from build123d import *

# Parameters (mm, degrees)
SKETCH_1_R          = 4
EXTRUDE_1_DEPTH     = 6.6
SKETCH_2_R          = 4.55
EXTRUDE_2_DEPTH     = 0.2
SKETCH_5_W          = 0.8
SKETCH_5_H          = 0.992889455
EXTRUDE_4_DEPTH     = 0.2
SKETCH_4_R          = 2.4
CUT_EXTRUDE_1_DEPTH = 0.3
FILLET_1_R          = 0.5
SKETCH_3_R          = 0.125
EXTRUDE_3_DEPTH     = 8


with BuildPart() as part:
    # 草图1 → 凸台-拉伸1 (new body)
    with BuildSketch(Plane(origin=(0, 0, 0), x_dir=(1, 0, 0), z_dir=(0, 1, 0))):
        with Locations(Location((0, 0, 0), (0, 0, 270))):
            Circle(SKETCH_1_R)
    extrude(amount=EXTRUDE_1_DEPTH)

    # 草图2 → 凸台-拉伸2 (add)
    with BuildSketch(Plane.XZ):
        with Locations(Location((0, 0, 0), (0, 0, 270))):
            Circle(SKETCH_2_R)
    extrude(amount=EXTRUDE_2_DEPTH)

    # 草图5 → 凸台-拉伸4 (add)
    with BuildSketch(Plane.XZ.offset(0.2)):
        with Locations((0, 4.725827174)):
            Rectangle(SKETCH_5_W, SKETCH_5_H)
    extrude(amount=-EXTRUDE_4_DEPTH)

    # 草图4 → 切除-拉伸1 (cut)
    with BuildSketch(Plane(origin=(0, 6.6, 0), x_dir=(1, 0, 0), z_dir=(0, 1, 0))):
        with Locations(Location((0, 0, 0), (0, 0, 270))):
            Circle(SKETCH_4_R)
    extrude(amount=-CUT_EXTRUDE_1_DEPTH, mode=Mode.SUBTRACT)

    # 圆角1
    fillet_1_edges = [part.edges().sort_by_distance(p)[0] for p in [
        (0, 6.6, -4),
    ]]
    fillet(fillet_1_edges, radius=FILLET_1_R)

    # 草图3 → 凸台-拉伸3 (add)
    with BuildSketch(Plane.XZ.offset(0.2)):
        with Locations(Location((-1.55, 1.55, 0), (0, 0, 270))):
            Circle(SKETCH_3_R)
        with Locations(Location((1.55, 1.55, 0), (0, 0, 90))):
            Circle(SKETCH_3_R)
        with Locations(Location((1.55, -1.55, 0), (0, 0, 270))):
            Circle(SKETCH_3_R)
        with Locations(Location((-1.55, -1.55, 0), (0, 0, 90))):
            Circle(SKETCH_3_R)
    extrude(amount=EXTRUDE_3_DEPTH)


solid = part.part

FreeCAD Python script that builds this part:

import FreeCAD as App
import Part
import Sketcher
from FreeCAD import Vector
Q = App.Units.Quantity


def edges_at(feature, points):
    """Names of the edges that pass closest to the given points."""
    edges = feature.Shape.Edges
    near = lambda p: min(range(len(edges)), key=lambda i: edges[i].distToShape(Part.Vertex(*p))[0])
    return sorted({f"Edge{near(p) + 1}" for p in points})


def add_polygon(sketch, points):
    """Adds a closed chain of lines whose ends are joined by coincident constraints."""
    first, n = sketch.GeometryCount, len(points)
    for a, b in zip(points, points[1:] + points[:1]):
        sketch.addGeometry(Part.LineSegment(App.Vector(*a, 0), App.Vector(*b, 0)), False)
    for i in range(n):
        sketch.addConstraint(Sketcher.Constraint("Coincident", first + i, 2, first + (i + 1) % n, 1))

doc = App.newDocument("Part")
body = doc.addObject("PartDesign::Body", "Body")

# Sketch on XZ plane
sketch1 = body.newObject("Sketcher::SketchObject", "Sketch")
sketch1.AttachmentSupport = (doc.getObject("XZ_Plane"), [""])
sketch1.MapMode = "FlatFace"
sketch1.addGeometry(Part.Circle(Vector(0, 0, 0), Vector(0, 0, 1), 4), False)
sketch1.addConstraint(Sketcher.Constraint("Coincident", 0, 3, -1, 1))
sketch1.addConstraint(Sketcher.Constraint("Diameter", 0, Q("8 mm")))
pad1 = body.newObject("PartDesign::Pad", "Pad")
pad1.Profile = sketch1
pad1.Length = 6.6
pad1.Reversed = True

# Sketch on XZ plane
sketch2 = body.newObject("Sketcher::SketchObject", "Sketch001")
sketch2.AttachmentSupport = (doc.getObject("XZ_Plane"), [""])
sketch2.MapMode = "FlatFace"
sketch2.addGeometry(Part.Circle(Vector(0, 0, 0), Vector(0, 0, 1), 4.5), False)
sketch2.addConstraint(Sketcher.Constraint("Coincident", 0, 3, -1, 1))
sketch2.addConstraint(Sketcher.Constraint("Diameter", 0, Q("9.1 mm")))
pad2 = body.newObject("PartDesign::Pad", "Pad001")
pad2.Profile = sketch2
pad2.Length = 0.2

# Sketch on XZ plane
sketch3 = body.newObject("Sketcher::SketchObject", "Sketch002")
sketch3.AttachmentSupport = (doc.getObject("XZ_Plane"), [""])
sketch3.MapMode = "FlatFace"
sketch3.AttachmentOffset = App.Placement(Vector(0, 0, 0.2), App.Rotation())
add_polygon(sketch3, [(-0.4, 5.2), (-0.4, 4.2), (0.4, 4.2), (0.4, 5.2)])  # lines 0-3
sketch3.addConstraint(Sketcher.Constraint("Vertical", 0))
sketch3.addConstraint(Sketcher.Constraint("Horizontal", 1))
sketch3.addConstraint(Sketcher.Constraint("Vertical", 2))
sketch3.addConstraint(Sketcher.Constraint("Horizontal", 3))
sketch3.addConstraint(Sketcher.Constraint("DistanceX", 1, 1, 1, 2, Q("0.8 mm")))
sketch3.addConstraint(Sketcher.Constraint("DistanceX", 0, 2, -1, 1, Q("0.4 mm")))
sketch3.addConstraint(Sketcher.Constraint("DistanceY", 0, 2, 0, 1, Q("0.992889 mm")))
sketch3.addConstraint(Sketcher.Constraint("DistanceY", -1, 1, 2, 2, Q("5.222272 mm")))
pad3 = body.newObject("PartDesign::Pad", "Pad002")
pad3.Profile = sketch3
pad3.Length = 0.2
pad3.Reversed = True

# Sketch on XZ plane
sketch4 = body.newObject("Sketcher::SketchObject", "Sketch003")
sketch4.AttachmentSupport = (doc.getObject("XZ_Plane"), [""])
sketch4.MapMode = "FlatFace"
sketch4.AttachmentOffset = App.Placement(Vector(0, 0, -6.6), App.Rotation())
sketch4.addGeometry(Part.Circle(Vector(0, 0, 0), Vector(0, 0, 1), 2.4), False)
sketch4.addConstraint(Sketcher.Constraint("Coincident", 0, 3, -1, 1))
sketch4.addConstraint(Sketcher.Constraint("Diameter", 0, Q("4.8 mm")))
pocket1 = body.newObject("PartDesign::Pocket", "Pocket")
pocket1.Profile = sketch4
pocket1.Length = 0.3
pocket1.Reversed = True
doc.recompute()

fillet = body.newObject("PartDesign::Fillet", "Fillet")
fillet.Base = (pocket1, edges_at(pocket1, [(0, 6.6, -4)]))
fillet.Radius = 0.5

# Sketch on XZ plane
sketch5 = body.newObject("Sketcher::SketchObject", "Sketch004")
sketch5.AttachmentSupport = (doc.getObject("XZ_Plane"), [""])
sketch5.MapMode = "FlatFace"
sketch5.AttachmentOffset = App.Placement(Vector(0, 0, 0.2), App.Rotation())
sketch5.addGeometry(Part.Circle(Vector(-1.55, 1.55, 0), Vector(0, 0, 1), 0.12), False)
sketch5.addGeometry(Part.Circle(Vector(1.55, 1.55, 0), Vector(0, 0, 1), 0.12), False)
sketch5.addGeometry(Part.Circle(Vector(1.55, -1.55, 0), Vector(0, 0, 1), 0.12), False)
sketch5.addGeometry(Part.Circle(Vector(-1.55, -1.55, 0), Vector(0, 0, 1), 0.12), False)
sketch5.addConstraint(Sketcher.Constraint("Equal", 0, 1))
sketch5.addConstraint(Sketcher.Constraint("Equal", 1, 2))
sketch5.addConstraint(Sketcher.Constraint("Equal", 2, 3))
sketch5.addConstraint(Sketcher.Constraint("Symmetric", 0, 3, 2, 3, -1, 1))
sketch5.addConstraint(Sketcher.Constraint("Symmetric", 1, 3, 3, 3, -1, 1))
sketch5.addConstraint(Sketcher.Constraint("Symmetric", 0, 3, 1, 3, -2))
sketch5.addConstraint(Sketcher.Constraint("Diameter", 0, Q("0.25 mm")))
sketch5.addConstraint(Sketcher.Constraint("DistanceX", 0, 3, 1, 3, Q("3.1 mm")))
sketch5.addConstraint(Sketcher.Constraint("DistanceY", 2, 3, 1, 3, Q("3.1 mm")))
pad4 = body.newObject("PartDesign::Pad", "Pad003")
pad4.Profile = sketch5
pad4.Length = 8

doc.recompute()
